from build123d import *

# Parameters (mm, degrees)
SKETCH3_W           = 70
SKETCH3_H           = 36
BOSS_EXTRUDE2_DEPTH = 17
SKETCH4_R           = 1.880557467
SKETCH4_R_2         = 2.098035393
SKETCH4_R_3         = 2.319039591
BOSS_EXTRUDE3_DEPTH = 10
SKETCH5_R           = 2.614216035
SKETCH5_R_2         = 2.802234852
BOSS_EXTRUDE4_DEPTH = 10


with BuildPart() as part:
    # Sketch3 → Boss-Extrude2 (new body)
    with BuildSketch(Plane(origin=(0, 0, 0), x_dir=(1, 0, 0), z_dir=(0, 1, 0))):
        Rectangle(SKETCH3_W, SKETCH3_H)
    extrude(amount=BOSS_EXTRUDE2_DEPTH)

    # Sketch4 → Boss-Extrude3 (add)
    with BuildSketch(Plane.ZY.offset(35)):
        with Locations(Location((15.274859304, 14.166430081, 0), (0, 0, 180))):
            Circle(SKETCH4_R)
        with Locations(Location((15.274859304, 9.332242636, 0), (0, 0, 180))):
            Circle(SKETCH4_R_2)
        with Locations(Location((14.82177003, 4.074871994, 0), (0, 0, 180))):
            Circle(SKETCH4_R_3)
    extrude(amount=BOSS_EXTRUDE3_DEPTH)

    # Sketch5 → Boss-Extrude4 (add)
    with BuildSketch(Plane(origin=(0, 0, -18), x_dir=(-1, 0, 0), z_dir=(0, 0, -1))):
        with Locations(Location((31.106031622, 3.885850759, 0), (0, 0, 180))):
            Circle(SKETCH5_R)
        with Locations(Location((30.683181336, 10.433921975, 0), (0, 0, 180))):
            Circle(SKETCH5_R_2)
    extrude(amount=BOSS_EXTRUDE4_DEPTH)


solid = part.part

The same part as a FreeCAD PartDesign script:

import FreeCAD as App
import Part
import Sketcher

V = App.Vector

doc = App.newDocument("Part")
params = doc.addObject("Spreadsheet::Sheet", "Params")
for row, (alias, value) in enumerate([
    ("sketch1_width", "70 mm"),
    ("sketch1_height", "36 mm"),
    ("pad1_length", "17 mm"),
    ("pad2_length", "10 mm"),
    ("pad3_length", "10 mm"),
], start=1):
    params.set(f"A{row}", alias)
    params.set(f"B{row}", "=" + value)
    params.setAlias(f"B{row}", alias)

body = doc.addObject("PartDesign::Body", "Body")

# Sketch on XZ plane
sketch1 = body.newObject("Sketcher::SketchObject", "Sketch")
sketch1.AttachmentSupport = (doc.getObject("XZ_Plane"), [""])
sketch1.MapMode = "FlatFace"
sketch1.addGeometry([
    Part.LineSegment(V(-35, -18, 0), V(-35, 18, 0)),
    Part.LineSegment(V(-35, 18, 0), V(35, 18, 0)),
    Part.LineSegment(V(35, 18, 0), V(35, -18, 0)),
    Part.LineSegment(V(35, -18, 0), V(-35, -18, 0)),
], False)
sketch1.addConstraint([
    Sketcher.Constraint("Coincident", 0, 2, 1, 1),
    Sketcher.Constraint("Coincident", 1, 2, 2, 1),
    Sketcher.Constraint("Coincident", 2, 2, 3, 1),
    Sketcher.Constraint("Coincident", 3, 2, 0, 1),
    Sketcher.Constraint("Vertical", 0),
    Sketcher.Constraint("Horizontal", 1),
    Sketcher.Constraint("Vertical", 2),
    Sketcher.Constraint("Horizontal", 3),
    Sketcher.Constraint("Symmetric", 0, 2, 2, 2, -1, 1),
    Sketcher.Constraint("DistanceX", 1, 1, 1, 2, 70.0),
    Sketcher.Constraint("DistanceY", 0, 1, 0, 2, 36.0),
])
sketch1.setExpression("Constraints[9]", "Params.sketch1_width")
sketch1.setExpression("Constraints[10]", "Params.sketch1_height")
pad1 = body.newObject("PartDesign::Pad", "Pad")
pad1.Profile = sketch1
pad1.setExpression("Length", "Params.pad1_length")
pad1.Reversed = True

# Sketch on YZ plane
sketch2 = body.newObject("Sketcher::SketchObject", "Sketch001")
sketch2.AttachmentSupport = (doc.getObject("YZ_Plane"), [""])
sketch2.MapMode = "FlatFace"
sketch2.AttachmentOffset = App.Placement(V(0, 0, -35), App.Rotation())
sketch2.addGeometry([
    Part.Circle(V(14.2, 15.3, 0), V(0, 0, 1), 1.9),
    Part.Circle(V(9.3, 15.3, 0), V(0, 0, 1), 2.1),
    Part.Circle(V(4.1, 14.8, 0), V(0, 0, 1), 2.3),
], False)
sketch2.addConstraint([
    Sketcher.Constraint("Horizontal", 0, 3, 1, 3),
    Sketcher.Constraint("Diameter", 1, 4.196071),
    Sketcher.Constraint("Diameter", 2, 4.638079),
    Sketcher.Constraint("Diameter", 0, 3.761115),
    Sketcher.Constraint("DistanceX", -1, 1, 0, 3, 14.16643),
    Sketcher.Constraint("DistanceY", -1, 1, 0, 3, 15.274859),
    Sketcher.Constraint("DistanceX", -1, 1, 2, 3, 4.074872),
    Sketcher.Constraint("DistanceY", -1, 1, 2, 3, 14.82177),
    Sketcher.Constraint("DistanceX", 2, 3, 1, 3, 5.257371),
])
pad2 = body.newObject("PartDesign::Pad", "Pad001")
pad2.Profile = sketch2
pad2.setExpression("Length", "Params.pad2_length")
pad2.Reversed = True

# Sketch on XY plane
sketch3 = body.newObject("Sketcher::SketchObject", "Sketch002")
sketch3.AttachmentSupport = (doc.getObject("XY_Plane"), [""])
sketch3.MapMode = "FlatFace"
sketch3.AttachmentOffset = App.Placement(V(0, 0, -18), App.Rotation())
sketch3.addGeometry([
    Part.Circle(V(-31.1, 3.9, 0), V(0, 0, 1), 2.6),
    Part.Circle(V(-30.7, 10.4, 0), V(0, 0, 1), 2.8),
], False)
sketch3.addConstraint([
    Sketcher.Constraint("Diameter", 1, 5.60447),
    Sketcher.Constraint("Diameter", 0, 5.228432),
    Sketcher.Constraint("DistanceX", 0, 3, -1, 1, 31.106032),
    Sketcher.Constraint("DistanceY", -1, 1, 0, 3, 3.885851),
    Sketcher.Constraint("DistanceX", 1, 3, -1, 1, 30.683181),
    Sketcher.Constraint("DistanceY", -1, 1, 1, 3, 10.433922),
])
pad3 = body.newObject("PartDesign::Pad", "Pad002")
pad3.Profile = sketch3
pad3.setExpression("Length", "Params.pad3_length")
pad3.Reversed = True

doc.recompute()
